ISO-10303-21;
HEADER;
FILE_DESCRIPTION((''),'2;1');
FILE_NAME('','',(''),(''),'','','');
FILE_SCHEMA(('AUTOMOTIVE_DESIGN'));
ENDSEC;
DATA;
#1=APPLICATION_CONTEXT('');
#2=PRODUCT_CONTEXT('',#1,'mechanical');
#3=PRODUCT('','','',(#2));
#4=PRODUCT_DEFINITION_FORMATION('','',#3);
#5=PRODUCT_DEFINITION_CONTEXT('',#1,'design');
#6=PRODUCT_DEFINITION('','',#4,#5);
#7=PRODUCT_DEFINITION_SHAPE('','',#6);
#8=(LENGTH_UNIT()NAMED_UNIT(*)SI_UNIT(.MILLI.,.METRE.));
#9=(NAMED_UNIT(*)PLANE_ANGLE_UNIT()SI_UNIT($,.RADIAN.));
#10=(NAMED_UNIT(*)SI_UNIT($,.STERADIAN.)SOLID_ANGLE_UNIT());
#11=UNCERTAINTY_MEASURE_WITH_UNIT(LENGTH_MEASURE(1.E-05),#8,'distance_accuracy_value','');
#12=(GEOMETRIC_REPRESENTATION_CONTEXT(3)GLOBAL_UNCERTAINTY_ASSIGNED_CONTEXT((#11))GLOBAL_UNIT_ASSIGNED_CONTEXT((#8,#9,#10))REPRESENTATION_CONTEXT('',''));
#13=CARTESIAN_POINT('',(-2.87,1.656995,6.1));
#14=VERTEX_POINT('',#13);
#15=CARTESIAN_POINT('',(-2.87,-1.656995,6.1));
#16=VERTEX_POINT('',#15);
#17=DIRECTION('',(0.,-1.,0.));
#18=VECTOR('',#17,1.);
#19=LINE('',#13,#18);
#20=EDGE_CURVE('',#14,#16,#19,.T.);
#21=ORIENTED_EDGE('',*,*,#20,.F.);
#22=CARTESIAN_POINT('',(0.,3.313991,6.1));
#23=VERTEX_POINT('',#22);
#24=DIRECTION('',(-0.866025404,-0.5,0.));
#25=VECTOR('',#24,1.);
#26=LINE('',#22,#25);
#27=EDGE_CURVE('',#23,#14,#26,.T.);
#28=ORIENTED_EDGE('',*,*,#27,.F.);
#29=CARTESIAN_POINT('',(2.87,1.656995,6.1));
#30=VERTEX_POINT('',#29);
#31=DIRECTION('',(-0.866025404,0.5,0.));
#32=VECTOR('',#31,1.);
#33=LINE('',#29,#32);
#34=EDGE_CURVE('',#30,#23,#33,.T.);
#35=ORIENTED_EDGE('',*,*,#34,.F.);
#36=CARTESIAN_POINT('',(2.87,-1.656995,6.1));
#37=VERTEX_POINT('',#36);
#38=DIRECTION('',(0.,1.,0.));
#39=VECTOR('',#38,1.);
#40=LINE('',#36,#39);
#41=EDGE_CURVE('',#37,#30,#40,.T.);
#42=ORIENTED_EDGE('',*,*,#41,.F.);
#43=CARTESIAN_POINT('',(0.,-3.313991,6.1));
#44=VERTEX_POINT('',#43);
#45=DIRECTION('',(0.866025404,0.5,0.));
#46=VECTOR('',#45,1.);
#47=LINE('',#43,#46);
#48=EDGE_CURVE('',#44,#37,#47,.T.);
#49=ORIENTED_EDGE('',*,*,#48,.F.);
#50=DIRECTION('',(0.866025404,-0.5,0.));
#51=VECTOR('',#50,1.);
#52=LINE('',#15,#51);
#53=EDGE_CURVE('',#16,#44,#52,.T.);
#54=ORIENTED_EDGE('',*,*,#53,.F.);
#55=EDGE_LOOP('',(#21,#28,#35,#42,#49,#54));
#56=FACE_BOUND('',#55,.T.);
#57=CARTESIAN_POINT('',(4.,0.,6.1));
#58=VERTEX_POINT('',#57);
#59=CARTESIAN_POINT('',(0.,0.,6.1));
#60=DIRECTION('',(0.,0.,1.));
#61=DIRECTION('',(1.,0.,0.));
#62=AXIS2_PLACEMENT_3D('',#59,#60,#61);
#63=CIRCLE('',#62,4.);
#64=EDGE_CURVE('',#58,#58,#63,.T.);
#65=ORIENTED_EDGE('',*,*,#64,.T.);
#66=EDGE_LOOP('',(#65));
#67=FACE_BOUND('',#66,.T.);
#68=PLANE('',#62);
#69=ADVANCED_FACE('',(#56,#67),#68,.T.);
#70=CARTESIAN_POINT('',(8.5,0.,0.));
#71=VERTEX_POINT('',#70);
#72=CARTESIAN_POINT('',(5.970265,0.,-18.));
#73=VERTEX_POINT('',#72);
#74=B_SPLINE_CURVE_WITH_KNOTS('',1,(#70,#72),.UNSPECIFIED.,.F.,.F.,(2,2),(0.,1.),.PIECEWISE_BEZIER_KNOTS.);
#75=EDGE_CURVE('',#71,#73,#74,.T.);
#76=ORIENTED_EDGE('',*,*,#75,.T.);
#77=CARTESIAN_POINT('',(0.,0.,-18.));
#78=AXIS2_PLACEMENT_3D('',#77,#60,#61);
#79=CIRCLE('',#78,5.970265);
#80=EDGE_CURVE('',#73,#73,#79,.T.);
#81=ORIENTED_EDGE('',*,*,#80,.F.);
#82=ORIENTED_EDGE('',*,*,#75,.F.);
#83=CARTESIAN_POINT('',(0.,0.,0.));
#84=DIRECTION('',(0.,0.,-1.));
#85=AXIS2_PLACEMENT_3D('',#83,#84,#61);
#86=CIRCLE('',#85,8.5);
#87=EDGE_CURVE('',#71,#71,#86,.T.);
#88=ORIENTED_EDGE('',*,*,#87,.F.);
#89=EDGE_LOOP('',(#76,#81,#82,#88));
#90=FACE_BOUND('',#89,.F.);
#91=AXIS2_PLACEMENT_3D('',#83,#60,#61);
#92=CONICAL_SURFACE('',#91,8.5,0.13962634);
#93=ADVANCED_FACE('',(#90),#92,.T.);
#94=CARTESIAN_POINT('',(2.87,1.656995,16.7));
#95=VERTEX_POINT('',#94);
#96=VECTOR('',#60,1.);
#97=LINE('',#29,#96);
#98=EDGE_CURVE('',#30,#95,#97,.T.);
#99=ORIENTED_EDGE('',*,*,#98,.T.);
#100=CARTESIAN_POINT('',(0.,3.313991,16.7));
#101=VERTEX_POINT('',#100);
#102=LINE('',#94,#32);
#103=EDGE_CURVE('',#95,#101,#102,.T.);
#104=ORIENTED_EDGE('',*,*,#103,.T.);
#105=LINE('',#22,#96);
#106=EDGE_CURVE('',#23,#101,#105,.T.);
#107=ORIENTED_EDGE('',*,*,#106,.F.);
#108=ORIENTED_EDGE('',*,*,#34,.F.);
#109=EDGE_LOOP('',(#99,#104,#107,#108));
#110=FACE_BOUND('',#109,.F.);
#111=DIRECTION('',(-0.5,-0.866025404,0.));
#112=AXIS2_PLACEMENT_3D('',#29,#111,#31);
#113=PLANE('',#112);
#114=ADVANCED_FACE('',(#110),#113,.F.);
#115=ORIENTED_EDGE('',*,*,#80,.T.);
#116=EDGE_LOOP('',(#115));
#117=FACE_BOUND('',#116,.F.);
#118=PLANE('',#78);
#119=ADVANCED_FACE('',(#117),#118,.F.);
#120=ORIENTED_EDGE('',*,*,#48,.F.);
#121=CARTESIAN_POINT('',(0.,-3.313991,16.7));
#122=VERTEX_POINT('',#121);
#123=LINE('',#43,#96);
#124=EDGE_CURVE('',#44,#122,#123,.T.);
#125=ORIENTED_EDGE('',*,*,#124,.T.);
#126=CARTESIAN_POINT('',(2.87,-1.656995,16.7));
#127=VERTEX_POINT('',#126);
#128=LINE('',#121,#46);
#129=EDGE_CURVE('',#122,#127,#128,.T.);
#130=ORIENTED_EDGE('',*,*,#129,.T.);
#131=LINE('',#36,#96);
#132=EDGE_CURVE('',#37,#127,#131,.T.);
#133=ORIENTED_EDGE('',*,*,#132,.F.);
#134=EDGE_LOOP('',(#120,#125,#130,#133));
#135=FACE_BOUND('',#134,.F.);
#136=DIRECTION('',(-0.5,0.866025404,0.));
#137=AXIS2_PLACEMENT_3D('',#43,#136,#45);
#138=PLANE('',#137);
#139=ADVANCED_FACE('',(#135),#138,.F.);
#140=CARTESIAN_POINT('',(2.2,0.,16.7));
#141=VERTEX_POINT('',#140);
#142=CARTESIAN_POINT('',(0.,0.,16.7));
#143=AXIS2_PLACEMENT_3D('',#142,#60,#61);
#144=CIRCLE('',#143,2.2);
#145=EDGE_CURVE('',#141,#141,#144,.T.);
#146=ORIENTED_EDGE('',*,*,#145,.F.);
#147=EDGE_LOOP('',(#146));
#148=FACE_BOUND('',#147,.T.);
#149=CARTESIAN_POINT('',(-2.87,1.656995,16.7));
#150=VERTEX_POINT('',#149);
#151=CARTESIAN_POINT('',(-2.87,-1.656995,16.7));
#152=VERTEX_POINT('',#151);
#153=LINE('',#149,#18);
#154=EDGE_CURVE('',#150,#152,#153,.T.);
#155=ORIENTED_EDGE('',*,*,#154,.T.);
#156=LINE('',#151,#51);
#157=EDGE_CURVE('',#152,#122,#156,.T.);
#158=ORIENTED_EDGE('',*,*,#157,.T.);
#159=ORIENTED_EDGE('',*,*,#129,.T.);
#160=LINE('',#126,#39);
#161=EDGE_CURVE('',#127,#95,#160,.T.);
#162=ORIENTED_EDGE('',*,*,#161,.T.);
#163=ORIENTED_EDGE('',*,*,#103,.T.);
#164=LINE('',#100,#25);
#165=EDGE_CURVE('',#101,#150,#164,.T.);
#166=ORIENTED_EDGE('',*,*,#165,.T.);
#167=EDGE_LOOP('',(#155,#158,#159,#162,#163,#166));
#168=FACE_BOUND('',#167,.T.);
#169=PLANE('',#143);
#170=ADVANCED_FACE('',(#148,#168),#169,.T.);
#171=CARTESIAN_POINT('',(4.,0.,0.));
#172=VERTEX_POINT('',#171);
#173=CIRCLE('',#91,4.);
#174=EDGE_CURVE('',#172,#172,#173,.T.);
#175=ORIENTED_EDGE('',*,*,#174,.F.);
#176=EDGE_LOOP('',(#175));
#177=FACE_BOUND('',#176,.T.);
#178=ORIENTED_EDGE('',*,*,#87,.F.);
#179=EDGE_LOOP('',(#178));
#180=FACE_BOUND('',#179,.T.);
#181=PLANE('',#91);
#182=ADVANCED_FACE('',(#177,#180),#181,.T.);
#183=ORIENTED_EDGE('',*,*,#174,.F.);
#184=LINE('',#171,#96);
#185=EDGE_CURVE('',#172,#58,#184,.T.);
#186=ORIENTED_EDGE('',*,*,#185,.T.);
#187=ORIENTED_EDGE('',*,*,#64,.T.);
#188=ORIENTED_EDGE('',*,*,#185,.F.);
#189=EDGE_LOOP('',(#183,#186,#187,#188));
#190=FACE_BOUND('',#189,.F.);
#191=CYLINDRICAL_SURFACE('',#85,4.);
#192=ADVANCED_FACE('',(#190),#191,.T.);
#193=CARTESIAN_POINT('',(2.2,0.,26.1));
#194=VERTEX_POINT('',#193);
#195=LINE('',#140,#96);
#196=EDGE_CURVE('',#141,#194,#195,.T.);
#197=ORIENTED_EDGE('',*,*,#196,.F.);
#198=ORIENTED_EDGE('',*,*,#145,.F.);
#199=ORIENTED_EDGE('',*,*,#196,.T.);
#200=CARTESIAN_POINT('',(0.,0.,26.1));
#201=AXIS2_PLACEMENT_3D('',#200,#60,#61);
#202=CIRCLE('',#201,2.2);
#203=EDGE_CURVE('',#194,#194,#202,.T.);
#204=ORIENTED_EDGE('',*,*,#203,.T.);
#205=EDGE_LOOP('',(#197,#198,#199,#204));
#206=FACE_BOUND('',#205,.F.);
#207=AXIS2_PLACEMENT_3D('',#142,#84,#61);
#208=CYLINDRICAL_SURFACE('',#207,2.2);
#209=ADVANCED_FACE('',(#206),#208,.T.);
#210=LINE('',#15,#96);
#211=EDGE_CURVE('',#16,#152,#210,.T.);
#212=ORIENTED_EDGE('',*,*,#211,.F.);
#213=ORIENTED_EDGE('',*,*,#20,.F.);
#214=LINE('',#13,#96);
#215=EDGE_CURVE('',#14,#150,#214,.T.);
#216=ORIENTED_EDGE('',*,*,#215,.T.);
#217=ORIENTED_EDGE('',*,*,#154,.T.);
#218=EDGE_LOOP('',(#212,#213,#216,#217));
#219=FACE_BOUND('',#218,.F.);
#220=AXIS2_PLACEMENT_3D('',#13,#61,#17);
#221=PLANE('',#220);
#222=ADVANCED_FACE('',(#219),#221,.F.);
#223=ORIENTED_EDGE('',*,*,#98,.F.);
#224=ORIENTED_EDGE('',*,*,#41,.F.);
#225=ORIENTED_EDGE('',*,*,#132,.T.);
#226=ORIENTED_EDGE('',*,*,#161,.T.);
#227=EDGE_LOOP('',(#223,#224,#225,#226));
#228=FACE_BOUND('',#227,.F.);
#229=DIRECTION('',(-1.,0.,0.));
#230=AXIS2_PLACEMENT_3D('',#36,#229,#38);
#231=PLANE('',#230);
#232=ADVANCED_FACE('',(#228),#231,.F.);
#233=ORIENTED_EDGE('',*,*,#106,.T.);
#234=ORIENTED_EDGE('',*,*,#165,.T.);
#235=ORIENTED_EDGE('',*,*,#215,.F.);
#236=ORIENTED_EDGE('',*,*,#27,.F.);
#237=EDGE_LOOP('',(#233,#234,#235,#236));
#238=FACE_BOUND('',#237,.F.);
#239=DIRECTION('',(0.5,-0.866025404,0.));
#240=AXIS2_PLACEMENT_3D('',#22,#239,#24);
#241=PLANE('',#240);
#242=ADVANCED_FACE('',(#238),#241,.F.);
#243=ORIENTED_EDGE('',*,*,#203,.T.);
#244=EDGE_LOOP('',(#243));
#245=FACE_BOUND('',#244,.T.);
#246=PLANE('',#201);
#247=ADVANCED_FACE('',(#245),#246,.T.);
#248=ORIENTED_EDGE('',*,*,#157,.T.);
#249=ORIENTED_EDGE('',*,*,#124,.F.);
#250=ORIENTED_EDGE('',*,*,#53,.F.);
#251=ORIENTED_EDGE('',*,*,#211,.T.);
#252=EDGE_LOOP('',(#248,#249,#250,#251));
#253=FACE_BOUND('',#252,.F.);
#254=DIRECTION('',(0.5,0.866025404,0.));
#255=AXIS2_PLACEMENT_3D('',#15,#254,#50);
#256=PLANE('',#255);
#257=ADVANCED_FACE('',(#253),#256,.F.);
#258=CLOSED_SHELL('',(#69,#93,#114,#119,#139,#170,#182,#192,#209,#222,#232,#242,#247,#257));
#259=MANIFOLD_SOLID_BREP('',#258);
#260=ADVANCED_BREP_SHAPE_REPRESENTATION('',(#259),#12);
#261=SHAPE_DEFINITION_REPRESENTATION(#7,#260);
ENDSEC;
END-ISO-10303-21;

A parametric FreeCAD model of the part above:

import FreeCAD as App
import Part
import Sketcher
from FreeCAD import Vector
Q = App.Units.Quantity

doc = App.newDocument("Part")
body = doc.addObject("PartDesign::Body", "Body")

sketch1 = body.newObject("Sketcher::SketchObject", "Sketch")
sketch1.AttachmentSupport = (doc.getObject("XY_Plane"), [""])
sketch1.MapMode = "FlatFace"
sketch1.addGeometry(Part.Circle(Vector(0, 0, 0), Vector(0, 0, 1), 8), False)
sketch1.addConstraint(Sketcher.Constraint("Coincident", 0, 3, -1, 1))
sketch1.addConstraint(Sketcher.Constraint("Diameter", 0, 17.0))
pad1 = body.newObject("PartDesign::Pad", "Pad")
pad1.Profile = sketch1
pad1.Length = 18
pad1.Reversed = True
pad1.TaperAngle = -8

sketch2 = body.newObject("Sketcher::SketchObject", "Sketch001")
sketch2.AttachmentSupport = (doc.getObject("XY_Plane"), [""])
sketch2.MapMode = "FlatFace"
sketch2.addGeometry(Part.Circle(Vector(0, 0, 0), Vector(0, 0, 1), 4), False)
sketch2.addConstraint(Sketcher.Constraint("Coincident", 0, 3, -1, 1))
sketch2.addConstraint(Sketcher.Constraint("Diameter", 0, 8.0))
pad2 = body.newObject("PartDesign::Pad", "Pad001")
pad2.Profile = sketch2
pad2.Length = 6.1

sketch3 = body.newObject("Sketcher::SketchObject", "Sketch002")
sketch3.AttachmentSupport = (doc.getObject("XY_Plane"), [""])
sketch3.MapMode = "FlatFace"
sketch3.AttachmentOffset = App.Placement(Vector(0, 0, 6.1), App.Rotation())
sketch3.addGeometry(Part.LineSegment(Vector(0, -3.3, 0), Vector(2.9, -1.7, 0)), False)
sketch3.addGeometry(Part.LineSegment(Vector(2.9, -1.7, 0), Vector(2.9, 1.7, 0)), False)
sketch3.addGeometry(Part.LineSegment(Vector(2.9, 1.7, 0), Vector(0, 3.3, 0)), False)
sketch3.addGeometry(Part.LineSegment(Vector(0, 3.3, 0), Vector(-2.9, 1.7, 0)), False)
sketch3.addGeometry(Part.LineSegment(Vector(-2.9, 1.7, 0), Vector(-2.9, -1.7, 0)), False)
sketch3.addGeometry(Part.LineSegment(Vector(-2.9, -1.7, 0), Vector(0, -3.3, 0)), False)
sketch3.addConstraint(Sketcher.Constraint("Coincident", 0, 2, 1, 1))
sketch3.addConstraint(Sketcher.Constraint("Coincident", 1, 2, 2, 1))
sketch3.addConstraint(Sketcher.Constraint("Coincident", 2, 2, 3, 1))
sketch3.addConstraint(Sketcher.Constraint("Coincident", 3, 2, 4, 1))
sketch3.addConstraint(Sketcher.Constraint("Coincident", 4, 2, 5, 1))
sketch3.addConstraint(Sketcher.Constraint("Coincident", 5, 2, 0, 1))
sketch3.addConstraint(Sketcher.Constraint("Vertical", 1))
sketch3.addConstraint(Sketcher.Constraint("Vertical", 4))
sketch3.addConstraint(Sketcher.Constraint("Symmetric", 0, 2, 3, 2, -1, 1))
sketch3.addConstraint(Sketcher.Constraint("Symmetric", 2, 2, 5, 2, -1, 1))
sketch3.addConstraint(Sketcher.Constraint("PointOnObject", 2, 2, -2))
sketch3.addConstraint(Sketcher.Constraint("Parallel", 2, 5))
sketch3.addConstraint(Sketcher.Constraint("Horizontal", 1, 2, 3, 2))
sketch3.addConstraint(Sketcher.Constraint("Angle", 0, Q("30 deg")))
sketch3.addConstraint(Sketcher.Constraint("DistanceX", -1, 1, 0, 2, 2.87))
sketch3.addConstraint(Sketcher.Constraint("DistanceY", 1, 1, 1, 2, 3.313991))
pad3 = body.newObject("PartDesign::Pad", "Pad002")
pad3.Profile = sketch3
pad3.Length = 10.6

sketch4 = body.newObject("Sketcher::SketchObject", "Sketch003")
sketch4.AttachmentSupport = (doc.getObject("XY_Plane"), [""])
sketch4.MapMode = "FlatFace"
sketch4.AttachmentOffset = App.Placement(Vector(0, 0, 16.7), App.Rotation())
sketch4.addGeometry(Part.Circle(Vector(0, 0, 0), Vector(0, 0, 1), 2.2), False)
sketch4.addConstraint(Sketcher.Constraint("Coincident", 0, 3, -1, 1))
sketch4.addConstraint(Sketcher.Constraint("Diameter", 0, 4.4))
pad4 = body.newObject("PartDesign::Pad", "Pad003")
pad4.Profile = sketch4
pad4.Length = 9.4

doc.recompute()
